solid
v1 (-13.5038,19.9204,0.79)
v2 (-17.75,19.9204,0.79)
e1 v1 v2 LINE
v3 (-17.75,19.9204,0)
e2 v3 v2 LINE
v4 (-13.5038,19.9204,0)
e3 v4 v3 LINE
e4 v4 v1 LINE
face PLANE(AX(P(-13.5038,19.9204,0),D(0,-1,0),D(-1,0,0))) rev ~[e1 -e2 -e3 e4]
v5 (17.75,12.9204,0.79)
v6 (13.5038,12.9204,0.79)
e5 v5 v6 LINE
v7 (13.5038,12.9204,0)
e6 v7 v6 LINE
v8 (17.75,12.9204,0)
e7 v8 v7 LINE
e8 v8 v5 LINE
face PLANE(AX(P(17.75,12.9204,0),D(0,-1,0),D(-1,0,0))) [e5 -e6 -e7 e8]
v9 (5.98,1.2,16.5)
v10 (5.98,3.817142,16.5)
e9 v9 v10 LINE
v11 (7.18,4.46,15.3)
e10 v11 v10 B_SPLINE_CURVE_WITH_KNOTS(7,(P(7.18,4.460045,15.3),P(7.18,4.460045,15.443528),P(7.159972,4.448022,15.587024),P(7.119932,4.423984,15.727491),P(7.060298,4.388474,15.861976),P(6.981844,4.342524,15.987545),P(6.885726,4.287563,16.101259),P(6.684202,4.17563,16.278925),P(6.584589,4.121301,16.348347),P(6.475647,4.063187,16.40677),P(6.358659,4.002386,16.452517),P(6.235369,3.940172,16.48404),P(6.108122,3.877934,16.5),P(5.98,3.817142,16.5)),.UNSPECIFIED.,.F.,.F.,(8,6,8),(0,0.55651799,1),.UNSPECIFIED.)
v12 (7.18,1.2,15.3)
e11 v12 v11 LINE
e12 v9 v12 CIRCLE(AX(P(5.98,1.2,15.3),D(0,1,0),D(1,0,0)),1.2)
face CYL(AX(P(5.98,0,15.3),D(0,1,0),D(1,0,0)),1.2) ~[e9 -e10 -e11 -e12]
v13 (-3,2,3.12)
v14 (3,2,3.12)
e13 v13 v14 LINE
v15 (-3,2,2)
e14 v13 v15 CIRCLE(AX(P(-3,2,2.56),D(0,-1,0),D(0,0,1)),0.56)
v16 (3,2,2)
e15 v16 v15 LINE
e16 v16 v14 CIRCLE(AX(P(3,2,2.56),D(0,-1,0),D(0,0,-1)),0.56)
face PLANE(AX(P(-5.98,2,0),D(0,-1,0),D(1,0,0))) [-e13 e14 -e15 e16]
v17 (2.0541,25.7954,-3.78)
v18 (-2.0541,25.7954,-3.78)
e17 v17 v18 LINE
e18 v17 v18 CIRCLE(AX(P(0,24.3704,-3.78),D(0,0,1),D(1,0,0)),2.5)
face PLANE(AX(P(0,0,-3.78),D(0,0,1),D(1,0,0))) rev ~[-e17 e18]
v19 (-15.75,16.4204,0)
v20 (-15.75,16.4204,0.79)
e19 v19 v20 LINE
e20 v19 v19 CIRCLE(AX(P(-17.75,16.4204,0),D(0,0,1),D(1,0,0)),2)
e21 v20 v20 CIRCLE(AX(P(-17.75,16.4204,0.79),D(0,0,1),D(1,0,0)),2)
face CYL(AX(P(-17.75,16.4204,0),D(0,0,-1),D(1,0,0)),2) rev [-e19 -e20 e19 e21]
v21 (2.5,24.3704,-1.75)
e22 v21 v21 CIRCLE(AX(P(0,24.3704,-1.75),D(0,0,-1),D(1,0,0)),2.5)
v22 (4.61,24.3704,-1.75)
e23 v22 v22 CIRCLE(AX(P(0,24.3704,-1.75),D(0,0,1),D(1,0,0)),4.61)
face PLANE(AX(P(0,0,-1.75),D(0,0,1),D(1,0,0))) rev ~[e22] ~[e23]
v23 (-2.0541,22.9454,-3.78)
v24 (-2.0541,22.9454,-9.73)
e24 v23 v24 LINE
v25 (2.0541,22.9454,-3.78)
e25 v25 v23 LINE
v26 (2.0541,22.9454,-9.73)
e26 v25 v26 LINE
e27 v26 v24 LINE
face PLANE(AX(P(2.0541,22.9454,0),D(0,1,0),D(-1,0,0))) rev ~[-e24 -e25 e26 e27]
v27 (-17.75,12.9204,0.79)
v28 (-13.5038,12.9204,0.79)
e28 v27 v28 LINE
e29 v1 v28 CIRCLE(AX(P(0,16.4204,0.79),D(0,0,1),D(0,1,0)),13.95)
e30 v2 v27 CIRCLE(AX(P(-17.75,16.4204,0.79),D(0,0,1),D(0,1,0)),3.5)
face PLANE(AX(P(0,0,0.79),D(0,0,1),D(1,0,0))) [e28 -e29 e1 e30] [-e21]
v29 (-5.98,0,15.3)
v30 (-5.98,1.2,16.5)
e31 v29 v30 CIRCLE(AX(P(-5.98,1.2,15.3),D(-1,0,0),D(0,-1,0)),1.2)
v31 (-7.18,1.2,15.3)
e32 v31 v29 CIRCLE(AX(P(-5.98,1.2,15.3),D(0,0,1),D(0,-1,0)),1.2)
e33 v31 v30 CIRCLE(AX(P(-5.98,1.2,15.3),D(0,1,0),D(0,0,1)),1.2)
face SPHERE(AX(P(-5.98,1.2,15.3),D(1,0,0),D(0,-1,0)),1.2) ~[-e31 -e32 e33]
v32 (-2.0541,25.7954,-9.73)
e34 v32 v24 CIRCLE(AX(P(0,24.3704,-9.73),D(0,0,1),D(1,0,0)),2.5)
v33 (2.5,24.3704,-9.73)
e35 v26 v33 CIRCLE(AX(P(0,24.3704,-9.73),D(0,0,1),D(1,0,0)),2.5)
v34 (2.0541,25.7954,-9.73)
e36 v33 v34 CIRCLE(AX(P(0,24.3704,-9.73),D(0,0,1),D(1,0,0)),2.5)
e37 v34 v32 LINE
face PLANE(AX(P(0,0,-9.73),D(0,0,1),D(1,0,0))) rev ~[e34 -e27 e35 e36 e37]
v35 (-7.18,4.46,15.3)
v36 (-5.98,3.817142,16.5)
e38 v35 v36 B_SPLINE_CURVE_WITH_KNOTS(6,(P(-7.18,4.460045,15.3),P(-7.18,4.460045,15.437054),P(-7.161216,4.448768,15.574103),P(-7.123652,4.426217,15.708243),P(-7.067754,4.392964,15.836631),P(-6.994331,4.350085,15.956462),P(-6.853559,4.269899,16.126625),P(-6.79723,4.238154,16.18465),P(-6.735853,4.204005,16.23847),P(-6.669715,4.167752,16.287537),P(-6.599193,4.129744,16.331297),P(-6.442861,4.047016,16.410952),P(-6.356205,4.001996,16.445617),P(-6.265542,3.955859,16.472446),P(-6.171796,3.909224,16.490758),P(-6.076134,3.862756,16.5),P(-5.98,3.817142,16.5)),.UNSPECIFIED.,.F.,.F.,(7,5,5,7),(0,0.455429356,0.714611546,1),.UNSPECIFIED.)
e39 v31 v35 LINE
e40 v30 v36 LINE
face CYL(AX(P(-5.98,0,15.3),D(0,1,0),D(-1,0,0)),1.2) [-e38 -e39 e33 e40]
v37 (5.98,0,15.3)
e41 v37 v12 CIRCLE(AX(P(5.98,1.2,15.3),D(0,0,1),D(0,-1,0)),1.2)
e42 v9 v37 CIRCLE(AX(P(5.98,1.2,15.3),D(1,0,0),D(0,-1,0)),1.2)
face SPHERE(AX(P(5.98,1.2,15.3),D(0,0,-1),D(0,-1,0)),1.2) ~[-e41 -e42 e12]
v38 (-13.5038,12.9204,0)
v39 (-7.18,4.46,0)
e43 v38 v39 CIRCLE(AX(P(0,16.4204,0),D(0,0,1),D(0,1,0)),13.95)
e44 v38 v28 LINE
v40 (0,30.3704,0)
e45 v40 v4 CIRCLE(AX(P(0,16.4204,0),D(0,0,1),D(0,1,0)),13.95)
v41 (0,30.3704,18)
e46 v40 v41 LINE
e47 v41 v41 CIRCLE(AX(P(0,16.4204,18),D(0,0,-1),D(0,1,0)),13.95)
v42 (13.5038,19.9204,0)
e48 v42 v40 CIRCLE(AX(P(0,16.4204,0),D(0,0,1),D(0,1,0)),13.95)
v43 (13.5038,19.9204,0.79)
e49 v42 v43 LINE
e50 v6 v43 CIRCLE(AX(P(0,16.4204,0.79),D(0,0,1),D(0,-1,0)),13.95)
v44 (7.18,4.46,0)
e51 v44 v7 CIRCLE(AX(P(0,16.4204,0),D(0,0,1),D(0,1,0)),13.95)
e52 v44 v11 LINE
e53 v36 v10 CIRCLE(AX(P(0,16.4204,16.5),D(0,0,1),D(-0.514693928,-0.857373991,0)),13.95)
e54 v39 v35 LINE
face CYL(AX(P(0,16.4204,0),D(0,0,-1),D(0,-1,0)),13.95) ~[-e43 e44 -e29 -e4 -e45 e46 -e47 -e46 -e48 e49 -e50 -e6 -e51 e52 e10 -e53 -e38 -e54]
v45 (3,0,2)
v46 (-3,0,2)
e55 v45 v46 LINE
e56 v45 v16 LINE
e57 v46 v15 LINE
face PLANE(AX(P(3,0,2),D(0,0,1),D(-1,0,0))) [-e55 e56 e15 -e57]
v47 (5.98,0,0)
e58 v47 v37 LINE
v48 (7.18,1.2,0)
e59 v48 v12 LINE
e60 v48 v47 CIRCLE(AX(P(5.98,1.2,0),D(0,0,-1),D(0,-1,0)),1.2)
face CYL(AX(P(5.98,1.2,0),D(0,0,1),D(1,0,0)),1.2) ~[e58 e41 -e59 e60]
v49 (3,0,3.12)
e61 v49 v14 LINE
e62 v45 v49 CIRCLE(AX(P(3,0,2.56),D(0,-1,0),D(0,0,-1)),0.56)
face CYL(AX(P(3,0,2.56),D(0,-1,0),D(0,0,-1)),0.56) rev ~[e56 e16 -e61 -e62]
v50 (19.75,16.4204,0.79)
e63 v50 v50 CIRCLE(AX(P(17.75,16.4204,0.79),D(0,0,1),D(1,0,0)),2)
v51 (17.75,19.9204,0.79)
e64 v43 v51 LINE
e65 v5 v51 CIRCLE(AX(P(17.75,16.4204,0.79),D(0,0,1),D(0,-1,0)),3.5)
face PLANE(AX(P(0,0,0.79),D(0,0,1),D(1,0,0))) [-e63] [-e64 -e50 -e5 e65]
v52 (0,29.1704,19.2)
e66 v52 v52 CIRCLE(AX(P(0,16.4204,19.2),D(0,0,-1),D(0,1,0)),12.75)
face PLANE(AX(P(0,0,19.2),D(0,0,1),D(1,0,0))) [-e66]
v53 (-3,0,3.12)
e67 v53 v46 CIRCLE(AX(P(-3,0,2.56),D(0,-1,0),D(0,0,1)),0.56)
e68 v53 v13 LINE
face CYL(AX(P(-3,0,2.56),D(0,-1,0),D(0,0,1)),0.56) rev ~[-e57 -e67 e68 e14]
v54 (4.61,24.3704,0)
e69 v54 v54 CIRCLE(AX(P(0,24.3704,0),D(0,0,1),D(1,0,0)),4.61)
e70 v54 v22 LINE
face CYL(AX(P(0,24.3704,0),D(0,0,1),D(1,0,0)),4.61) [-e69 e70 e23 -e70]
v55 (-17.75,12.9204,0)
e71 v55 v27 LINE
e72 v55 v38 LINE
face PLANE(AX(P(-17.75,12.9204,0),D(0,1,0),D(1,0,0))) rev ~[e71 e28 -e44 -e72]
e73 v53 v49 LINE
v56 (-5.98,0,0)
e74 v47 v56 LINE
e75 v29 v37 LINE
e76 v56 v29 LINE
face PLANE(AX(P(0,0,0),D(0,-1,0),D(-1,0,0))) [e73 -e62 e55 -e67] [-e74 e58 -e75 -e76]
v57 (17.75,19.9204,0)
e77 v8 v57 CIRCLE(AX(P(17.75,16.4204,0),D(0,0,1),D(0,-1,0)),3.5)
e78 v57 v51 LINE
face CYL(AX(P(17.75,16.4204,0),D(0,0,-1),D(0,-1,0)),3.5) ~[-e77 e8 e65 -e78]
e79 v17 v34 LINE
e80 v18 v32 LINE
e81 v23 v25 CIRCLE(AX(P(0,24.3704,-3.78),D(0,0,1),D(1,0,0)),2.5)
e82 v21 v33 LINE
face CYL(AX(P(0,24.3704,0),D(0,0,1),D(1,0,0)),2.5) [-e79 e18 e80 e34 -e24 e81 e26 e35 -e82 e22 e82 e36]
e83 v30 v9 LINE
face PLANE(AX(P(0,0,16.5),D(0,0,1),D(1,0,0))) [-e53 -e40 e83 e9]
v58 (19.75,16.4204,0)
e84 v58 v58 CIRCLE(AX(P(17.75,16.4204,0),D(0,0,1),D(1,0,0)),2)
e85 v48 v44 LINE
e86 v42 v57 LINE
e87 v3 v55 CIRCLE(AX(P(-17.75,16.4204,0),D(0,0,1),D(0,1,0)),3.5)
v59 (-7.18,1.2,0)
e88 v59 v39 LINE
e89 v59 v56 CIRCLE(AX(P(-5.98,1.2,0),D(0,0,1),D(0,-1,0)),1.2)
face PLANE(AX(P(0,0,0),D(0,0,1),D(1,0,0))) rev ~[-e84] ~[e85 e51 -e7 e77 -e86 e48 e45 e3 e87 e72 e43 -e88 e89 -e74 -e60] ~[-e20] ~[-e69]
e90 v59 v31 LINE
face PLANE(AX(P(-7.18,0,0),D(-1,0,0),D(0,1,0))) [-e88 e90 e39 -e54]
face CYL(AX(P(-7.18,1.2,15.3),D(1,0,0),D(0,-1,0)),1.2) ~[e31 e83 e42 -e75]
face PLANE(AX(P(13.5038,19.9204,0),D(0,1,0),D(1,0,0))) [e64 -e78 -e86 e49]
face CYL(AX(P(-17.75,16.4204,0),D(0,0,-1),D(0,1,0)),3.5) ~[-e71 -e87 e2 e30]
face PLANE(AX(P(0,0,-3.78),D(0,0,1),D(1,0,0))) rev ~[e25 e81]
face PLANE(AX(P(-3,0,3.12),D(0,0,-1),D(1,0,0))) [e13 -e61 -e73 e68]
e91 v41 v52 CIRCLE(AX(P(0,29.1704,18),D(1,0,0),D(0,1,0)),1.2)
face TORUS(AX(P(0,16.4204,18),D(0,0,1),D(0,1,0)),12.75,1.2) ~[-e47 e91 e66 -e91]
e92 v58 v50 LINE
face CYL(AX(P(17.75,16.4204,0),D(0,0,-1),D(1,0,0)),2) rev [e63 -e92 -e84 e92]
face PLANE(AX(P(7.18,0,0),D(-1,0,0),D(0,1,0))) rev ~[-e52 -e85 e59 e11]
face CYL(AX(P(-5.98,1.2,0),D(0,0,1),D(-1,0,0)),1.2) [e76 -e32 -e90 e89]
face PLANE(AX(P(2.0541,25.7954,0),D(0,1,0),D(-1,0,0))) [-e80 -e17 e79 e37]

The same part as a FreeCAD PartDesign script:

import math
import FreeCAD as App
import Part
import Sketcher
Q = App.Units.Quantity


def edges_at(feature, points):
    """Names of the edges that pass closest to the given points."""
    edges = feature.Shape.Edges
    near = lambda p: min(range(len(edges)), key=lambda i: edges[i].distToShape(Part.Vertex(*p))[0])
    return sorted({f"Edge{near(p) + 1}" for p in points})

doc = App.newDocument("Part")
params = doc.addObject("Spreadsheet::Sheet", "Params")
for row, (alias, value) in enumerate([
    ("sketch1_diameter", "27.9 mm"),
    ("pad1_length", "19.2 mm"),
    ("sketch2_diameter", "4 mm"),
    ("sketch2_radius", "3.5 mm"),
    ("sketch2_radius2", "13.95 mm"),
    ("pad2_length", "0.79 mm"),
    ("sketch3_radius", "13.95 mm"),
    ("sketch3_height", "4.46 mm"),
    ("pad3_length", "16.5 mm"),
    ("sketch4_diameter", "5 mm"),
    ("sketch4_diameter2", "9.22 mm"),
    ("pad4_length", "1.75 mm"),
    ("sketch5_radius", "2.5 mm"),
    ("pad5_length", "3.78 mm"),
    ("sketch6_radius", "2.5 mm"),
    ("pad6_length", "9.73 mm"),
    ("fillet_radius", "1.2 mm"),
    ("sketch7_width", "6 mm"),
    ("sketch7_radius", "0.56 mm"),
    ("pocket1_length", "2 mm"),
], start=1):
    params.set(f"A{row}", alias)
    params.set(f"B{row}", "=" + value)
    params.setAlias(f"B{row}", alias)

body = doc.addObject("PartDesign::Body", "Body")

# Sketch on XY plane
sketch1 = body.newObject("Sketcher::SketchObject", "Sketch")
sketch1.AttachmentSupport = (doc.getObject("XY_Plane"), [""])
sketch1.MapMode = "FlatFace"
sketch1.addGeometry(Part.Circle(App.Vector(0, 16, 0), App.Vector(0, 0, 1), 14), False)
sketch1.addConstraint([
    Sketcher.Constraint("PointOnObject", 0, 3, -2),
    Sketcher.Constraint("Diameter", 0, Q("27.9 mm")),
    Sketcher.Constraint("DistanceY", -1, 1, 0, 3, Q("16.4204 mm")),
])
sketch1.setExpression("Constraints[1]", "Params.sketch1_diameter")
pad1 = body.newObject("PartDesign::Pad", "Pad")
pad1.Profile = sketch1
pad1.setExpression("Length", "Params.pad1_length")

# Sketch on XY plane
sketch2 = body.newObject("Sketcher::SketchObject", "Sketch001")
sketch2.AttachmentSupport = (doc.getObject("XY_Plane"), [""])
sketch2.MapMode = "FlatFace"
sketch2.addGeometry([
    Part.ArcOfCircle(Part.Circle(App.Vector(0, 16.4, 0), App.Vector(0, 0, 1), 13.9), math.radians(-15), math.radians(15)),  # 0
    Part.LineSegment(App.Vector(13.5, 12.9, 0), App.Vector(17.8, 12.9, 0)),  # 1
    Part.ArcOfCircle(Part.Circle(App.Vector(17.8, 16.4, 0), App.Vector(0, 0, 1), 3.5), math.radians(-90), math.radians(90)),  # 2
    Part.LineSegment(App.Vector(17.8, 19.9, 0), App.Vector(13.5, 19.9, 0)),  # 3
    Part.Circle(App.Vector(17.8, 16.4, 0), App.Vector(0, 0, 1), 2),  # 4
    Part.LineSegment(App.Vector(-17.8, 12.9, 0), App.Vector(-13.5, 12.9, 0)),  # 5
    Part.ArcOfCircle(Part.Circle(App.Vector(0, 16.4, 0), App.Vector(0, 0, 1), 13.9), math.radians(165), math.radians(195)),  # 6
    Part.LineSegment(App.Vector(-13.5, 19.9, 0), App.Vector(-17.8, 19.9, 0)),  # 7
    Part.ArcOfCircle(Part.Circle(App.Vector(-17.8, 16.4, 0), App.Vector(0, 0, 1), 3.5), math.radians(90), math.radians(270)),  # 8
    Part.Circle(App.Vector(-17.8, 16.4, 0), App.Vector(0, 0, 1), 2),  # 9
], False)
sketch2.addConstraint([
    Sketcher.Constraint("Coincident", 0, 1, 1, 1),
    Sketcher.Constraint("Tangent", 1, 2, 2, 1),
    Sketcher.Constraint("Tangent", 2, 2, 3, 1),
    Sketcher.Constraint("Coincident", 3, 2, 0, 2),
    Sketcher.Constraint("Coincident", 5, 2, 6, 2),
    Sketcher.Constraint("Coincident", 6, 1, 7, 1),
    Sketcher.Constraint("Tangent", 7, 2, 8, 1),
    Sketcher.Constraint("Tangent", 8, 2, 5, 1),
    Sketcher.Constraint("Horizontal", 1),
    Sketcher.Constraint("Horizontal", 3),
    Sketcher.Constraint("Horizontal", 5),
    Sketcher.Constraint("Horizontal", 7),
    Sketcher.Constraint("Coincident", 4, 3, 2, 3),
    Sketcher.Constraint("Coincident", 6, 3, 0, 3),
    Sketcher.Constraint("Coincident", 9, 3, 8, 3),
    Sketcher.Constraint("Equal", 0, 6),
    Sketcher.Constraint("Equal", 2, 8),
    Sketcher.Constraint("Equal", 4, 9),
    Sketcher.Constraint("Symmetric", 2, 3, 8, 3, -2),
    Sketcher.Constraint("PointOnObject", 0, 3, -2),
    Sketcher.Constraint("Horizontal", 0, 3, 2, 3),
    Sketcher.Constraint("Diameter", 4, Q("4 mm")),
    Sketcher.Constraint("Radius", 2, Q("3.5 mm")),
    Sketcher.Constraint("Radius", 0, Q("13.95 mm")),
    Sketcher.Constraint("DistanceX", 8, 3, 2, 3, Q("35.5 mm")),
    Sketcher.Constraint("DistanceY", -1, 1, 0, 3, Q("16.4204 mm")),
])
sketch2.setExpression("Constraints[21]", "Params.sketch2_diameter")
sketch2.setExpression("Constraints[22]", "Params.sketch2_radius")
sketch2.setExpression("Constraints[23]", "Params.sketch2_radius2")
pad2 = body.newObject("PartDesign::Pad", "Pad001")
pad2.Profile = sketch2
pad2.setExpression("Length", "Params.pad2_length")

# Sketch on XY plane
sketch3 = body.newObject("Sketcher::SketchObject", "Sketch002")
sketch3.AttachmentSupport = (doc.getObject("XY_Plane"), [""])
sketch3.MapMode = "FlatFace"
sketch3.addGeometry([
    Part.LineSegment(App.Vector(-7.2, 0, 0), App.Vector(7.2, 0, 0)),
    Part.LineSegment(App.Vector(7.2, 0, 0), App.Vector(7.2, 4.5, 0)),
    Part.ArcOfCircle(Part.Circle(App.Vector(0, 16.4, 0), App.Vector(0, 0, 1), 13.9), math.radians(-121), math.radians(-59)),
    Part.LineSegment(App.Vector(-7.2, 4.5, 0), App.Vector(-7.2, 0, 0)),
], False)
sketch3.addConstraint([
    Sketcher.Constraint("Coincident", 0, 2, 1, 1),
    Sketcher.Constraint("Coincident", 1, 2, 2, 2),
    Sketcher.Constraint("Coincident", 2, 1, 3, 1),
    Sketcher.Constraint("Coincident", 3, 2, 0, 1),
    Sketcher.Constraint("Horizontal", 0),
    Sketcher.Constraint("Vertical", 1),
    Sketcher.Constraint("Vertical", 3),
    Sketcher.Constraint("Symmetric", 0, 2, 3, 2, -1, 1),
    Sketcher.Constraint("PointOnObject", 2, 3, -2),
    Sketcher.Constraint("Radius", 2, Q("13.95 mm")),
    Sketcher.Constraint("DistanceY", 1, 1, 1, 2, Q("4.46 mm")),
    Sketcher.Constraint("DistanceX", -1, 1, 0, 2, Q("7.18 mm")),
])
sketch3.setExpression("Constraints[9]", "Params.sketch3_radius")
sketch3.setExpression("Constraints[10]", "Params.sketch3_height")
pad3 = body.newObject("PartDesign::Pad", "Pad002")
pad3.Profile = sketch3
pad3.setExpression("Length", "Params.pad3_length")

# Sketch on XY plane
sketch4 = body.newObject("Sketcher::SketchObject", "Sketch003")
sketch4.AttachmentSupport = (doc.getObject("XY_Plane"), [""])
sketch4.MapMode = "FlatFace"
sketch4.addGeometry([
    Part.Circle(App.Vector(0, 24.4, 0), App.Vector(0, 0, 1), 4.6),
    Part.Circle(App.Vector(0, 24.4, 0), App.Vector(0, 0, 1), 2.5),
], False)
sketch4.addConstraint([
    Sketcher.Constraint("Coincident", 1, 3, 0, 3),
    Sketcher.Constraint("PointOnObject", 0, 3, -2),
    Sketcher.Constraint("Diameter", 1, Q("5 mm")),
    Sketcher.Constraint("Diameter", 0, Q("9.22 mm")),
    Sketcher.Constraint("DistanceY", -1, 1, 0, 3, Q("24.3704 mm")),
])
sketch4.setExpression("Constraints[2]", "Params.sketch4_diameter")
sketch4.setExpression("Constraints[3]", "Params.sketch4_diameter2")
pad4 = body.newObject("PartDesign::Pad", "Pad003")
pad4.Profile = sketch4
pad4.setExpression("Length", "Params.pad4_length")
pad4.Reversed = True

# Sketch on XY plane
sketch5 = body.newObject("Sketcher::SketchObject", "Sketch004")
sketch5.AttachmentSupport = (doc.getObject("XY_Plane"), [""])
sketch5.MapMode = "FlatFace"
sketch5.addGeometry([
    Part.LineSegment(App.Vector(-2.1, 25.8, 0), App.Vector(2.1, 25.8, 0)),
    Part.ArcOfCircle(Part.Circle(App.Vector(0, 24.4, 0), App.Vector(0, 0, 1), 2.5), math.radians(35), math.radians(145)),
    Part.ArcOfCircle(Part.Circle(App.Vector(0, 24.4, 0), App.Vector(0, 0, 1), 2.5), math.radians(-145), math.radians(-35)),
    Part.LineSegment(App.Vector(-2.1, 22.9, 0), App.Vector(2.1, 22.9, 0)),
], False)
sketch5.addConstraint([
    Sketcher.Constraint("Coincident", 0, 1, 1, 2),
    Sketcher.Constraint("Coincident", 1, 1, 0, 2),
    Sketcher.Constraint("Coincident", 2, 1, 3, 1),
    Sketcher.Constraint("Coincident", 3, 2, 2, 2),
    Sketcher.Constraint("Horizontal", 0),
    Sketcher.Constraint("Horizontal", 3),
    Sketcher.Constraint("Coincident", 2, 3, 1, 3),
    Sketcher.Constraint("Equal", 1, 2),
    Sketcher.Constraint("PointOnObject", 1, 3, -2),
    Sketcher.Constraint("Vertical", 0, 1, 2, 1),
    Sketcher.Constraint("Radius", 1, Q("2.5 mm")),
    Sketcher.Constraint("DistanceY", 2, 1, 0, 1, Q("2.85 mm")),
    Sketcher.Constraint("DistanceY", -1, 1, 1, 3, Q("24.3704 mm")),
])
sketch5.setExpression("Constraints[10]", "Params.sketch5_radius")
pad5 = body.newObject("PartDesign::Pad", "Pad004")
pad5.Profile = sketch5
pad5.setExpression("Length", "Params.pad5_length")
pad5.Reversed = True

# Sketch on XY plane
sketch6 = body.newObject("Sketcher::SketchObject", "Sketch005")
sketch6.AttachmentSupport = (doc.getObject("XY_Plane"), [""])
sketch6.MapMode = "FlatFace"
sketch6.addGeometry([
    Part.ArcOfCircle(Part.Circle(App.Vector(0, 24.4, 0), App.Vector(0, 0, 1), 2.5), math.radians(-35), math.radians(35)),
    Part.LineSegment(App.Vector(2.1, 25.8, 0), App.Vector(-2.1, 25.8, 0)),
    Part.ArcOfCircle(Part.Circle(App.Vector(0, 24.4, 0), App.Vector(0, 0, 1), 2.5), math.radians(145), math.radians(215)),
    Part.LineSegment(App.Vector(-2.1, 22.9, 0), App.Vector(2.1, 22.9, 0)),
], False)
sketch6.addConstraint([
    Sketcher.Constraint("Coincident", 0, 2, 1, 1),
    Sketcher.Constraint("Coincident", 1, 2, 2, 1),
    Sketcher.Constraint("Coincident", 2, 2, 3, 1),
    Sketcher.Constraint("Coincident", 3, 2, 0, 1),
    Sketcher.Constraint("Horizontal", 1),
    Sketcher.Constraint("Horizontal", 3),
    Sketcher.Constraint("Coincident", 2, 3, 0, 3),
    Sketcher.Constraint("Equal", 0, 2),
    Sketcher.Constraint("PointOnObject", 0, 3, -2),
    Sketcher.Constraint("Vertical", 1, 2, 2, 2),
    Sketcher.Constraint("Radius", 0, Q("2.5 mm")),
    Sketcher.Constraint("DistanceY", 2, 2, 1, 2, Q("2.85 mm")),
    Sketcher.Constraint("DistanceY", -1, 1, 0, 3, Q("24.3704 mm")),
])
sketch6.setExpression("Constraints[10]", "Params.sketch6_radius")
pad6 = body.newObject("PartDesign::Pad", "Pad005")
pad6.Profile = sketch6
pad6.setExpression("Length", "Params.pad6_length")
pad6.Reversed = True
doc.recompute()

fillet = body.newObject("PartDesign::Fillet", "Fillet")
fillet.Base = (pad6, edges_at(pad6, [
    (7.18, 28.381, 19.2),
    (7.18, 0, 8.25),
    (0, 0, 16.5),
    (-7.18, 0, 8.25),
    (-7.18, 2.23, 16.5),
    (7.18, 2.23, 16.5),
]))
fillet.setExpression("Radius", "Params.fillet_radius")

# Sketch on XZ plane
sketch7 = body.newObject("Sketcher::SketchObject", "Sketch006")
sketch7.AttachmentSupport = (doc.getObject("XZ_Plane"), [""])
sketch7.MapMode = "FlatFace"
sketch7.addGeometry([
    Part.LineSegment(App.Vector(-3, 2, 0), App.Vector(3, 2, 0)),
    Part.ArcOfCircle(Part.Circle(App.Vector(3, 2.6, 0), App.Vector(0, 0, 1), 0.6), math.radians(-90), math.radians(90)),
    Part.LineSegment(App.Vector(3, 3.1, 0), App.Vector(-3, 3.1, 0)),
    Part.ArcOfCircle(Part.Circle(App.Vector(-3, 2.6, 0), App.Vector(0, 0, 1), 0.6), math.radians(90), math.radians(270)),
], False)
sketch7.addConstraint([
    Sketcher.Constraint("Tangent", 0, 2, 1, 1),
    Sketcher.Constraint("Tangent", 1, 2, 2, 1),
    Sketcher.Constraint("Tangent", 2, 2, 3, 1),
    Sketcher.Constraint("Tangent", 3, 2, 0, 1),
    Sketcher.Constraint("Horizontal", 0),
    Sketcher.Constraint("Horizontal", 2),
    Sketcher.Constraint("DistanceX", 0, 1, 0, 2, Q("6 mm")),
    Sketcher.Constraint("Radius", 1, Q("0.56 mm")),
    Sketcher.Constraint("DistanceY", -1, 1, 0, 2, Q("2 mm")),
    Sketcher.Constraint("DistanceX", -1, 1, 1, 3, Q("3 mm")),
])
sketch7.setExpression("Constraints[6]", "Params.sketch7_width")
sketch7.setExpression("Constraints[7]", "Params.sketch7_radius")
pocket1 = body.newObject("PartDesign::Pocket", "Pocket")
pocket1.Profile = sketch7
pocket1.setExpression("Length", "Params.pocket1_length")

doc.recompute()
